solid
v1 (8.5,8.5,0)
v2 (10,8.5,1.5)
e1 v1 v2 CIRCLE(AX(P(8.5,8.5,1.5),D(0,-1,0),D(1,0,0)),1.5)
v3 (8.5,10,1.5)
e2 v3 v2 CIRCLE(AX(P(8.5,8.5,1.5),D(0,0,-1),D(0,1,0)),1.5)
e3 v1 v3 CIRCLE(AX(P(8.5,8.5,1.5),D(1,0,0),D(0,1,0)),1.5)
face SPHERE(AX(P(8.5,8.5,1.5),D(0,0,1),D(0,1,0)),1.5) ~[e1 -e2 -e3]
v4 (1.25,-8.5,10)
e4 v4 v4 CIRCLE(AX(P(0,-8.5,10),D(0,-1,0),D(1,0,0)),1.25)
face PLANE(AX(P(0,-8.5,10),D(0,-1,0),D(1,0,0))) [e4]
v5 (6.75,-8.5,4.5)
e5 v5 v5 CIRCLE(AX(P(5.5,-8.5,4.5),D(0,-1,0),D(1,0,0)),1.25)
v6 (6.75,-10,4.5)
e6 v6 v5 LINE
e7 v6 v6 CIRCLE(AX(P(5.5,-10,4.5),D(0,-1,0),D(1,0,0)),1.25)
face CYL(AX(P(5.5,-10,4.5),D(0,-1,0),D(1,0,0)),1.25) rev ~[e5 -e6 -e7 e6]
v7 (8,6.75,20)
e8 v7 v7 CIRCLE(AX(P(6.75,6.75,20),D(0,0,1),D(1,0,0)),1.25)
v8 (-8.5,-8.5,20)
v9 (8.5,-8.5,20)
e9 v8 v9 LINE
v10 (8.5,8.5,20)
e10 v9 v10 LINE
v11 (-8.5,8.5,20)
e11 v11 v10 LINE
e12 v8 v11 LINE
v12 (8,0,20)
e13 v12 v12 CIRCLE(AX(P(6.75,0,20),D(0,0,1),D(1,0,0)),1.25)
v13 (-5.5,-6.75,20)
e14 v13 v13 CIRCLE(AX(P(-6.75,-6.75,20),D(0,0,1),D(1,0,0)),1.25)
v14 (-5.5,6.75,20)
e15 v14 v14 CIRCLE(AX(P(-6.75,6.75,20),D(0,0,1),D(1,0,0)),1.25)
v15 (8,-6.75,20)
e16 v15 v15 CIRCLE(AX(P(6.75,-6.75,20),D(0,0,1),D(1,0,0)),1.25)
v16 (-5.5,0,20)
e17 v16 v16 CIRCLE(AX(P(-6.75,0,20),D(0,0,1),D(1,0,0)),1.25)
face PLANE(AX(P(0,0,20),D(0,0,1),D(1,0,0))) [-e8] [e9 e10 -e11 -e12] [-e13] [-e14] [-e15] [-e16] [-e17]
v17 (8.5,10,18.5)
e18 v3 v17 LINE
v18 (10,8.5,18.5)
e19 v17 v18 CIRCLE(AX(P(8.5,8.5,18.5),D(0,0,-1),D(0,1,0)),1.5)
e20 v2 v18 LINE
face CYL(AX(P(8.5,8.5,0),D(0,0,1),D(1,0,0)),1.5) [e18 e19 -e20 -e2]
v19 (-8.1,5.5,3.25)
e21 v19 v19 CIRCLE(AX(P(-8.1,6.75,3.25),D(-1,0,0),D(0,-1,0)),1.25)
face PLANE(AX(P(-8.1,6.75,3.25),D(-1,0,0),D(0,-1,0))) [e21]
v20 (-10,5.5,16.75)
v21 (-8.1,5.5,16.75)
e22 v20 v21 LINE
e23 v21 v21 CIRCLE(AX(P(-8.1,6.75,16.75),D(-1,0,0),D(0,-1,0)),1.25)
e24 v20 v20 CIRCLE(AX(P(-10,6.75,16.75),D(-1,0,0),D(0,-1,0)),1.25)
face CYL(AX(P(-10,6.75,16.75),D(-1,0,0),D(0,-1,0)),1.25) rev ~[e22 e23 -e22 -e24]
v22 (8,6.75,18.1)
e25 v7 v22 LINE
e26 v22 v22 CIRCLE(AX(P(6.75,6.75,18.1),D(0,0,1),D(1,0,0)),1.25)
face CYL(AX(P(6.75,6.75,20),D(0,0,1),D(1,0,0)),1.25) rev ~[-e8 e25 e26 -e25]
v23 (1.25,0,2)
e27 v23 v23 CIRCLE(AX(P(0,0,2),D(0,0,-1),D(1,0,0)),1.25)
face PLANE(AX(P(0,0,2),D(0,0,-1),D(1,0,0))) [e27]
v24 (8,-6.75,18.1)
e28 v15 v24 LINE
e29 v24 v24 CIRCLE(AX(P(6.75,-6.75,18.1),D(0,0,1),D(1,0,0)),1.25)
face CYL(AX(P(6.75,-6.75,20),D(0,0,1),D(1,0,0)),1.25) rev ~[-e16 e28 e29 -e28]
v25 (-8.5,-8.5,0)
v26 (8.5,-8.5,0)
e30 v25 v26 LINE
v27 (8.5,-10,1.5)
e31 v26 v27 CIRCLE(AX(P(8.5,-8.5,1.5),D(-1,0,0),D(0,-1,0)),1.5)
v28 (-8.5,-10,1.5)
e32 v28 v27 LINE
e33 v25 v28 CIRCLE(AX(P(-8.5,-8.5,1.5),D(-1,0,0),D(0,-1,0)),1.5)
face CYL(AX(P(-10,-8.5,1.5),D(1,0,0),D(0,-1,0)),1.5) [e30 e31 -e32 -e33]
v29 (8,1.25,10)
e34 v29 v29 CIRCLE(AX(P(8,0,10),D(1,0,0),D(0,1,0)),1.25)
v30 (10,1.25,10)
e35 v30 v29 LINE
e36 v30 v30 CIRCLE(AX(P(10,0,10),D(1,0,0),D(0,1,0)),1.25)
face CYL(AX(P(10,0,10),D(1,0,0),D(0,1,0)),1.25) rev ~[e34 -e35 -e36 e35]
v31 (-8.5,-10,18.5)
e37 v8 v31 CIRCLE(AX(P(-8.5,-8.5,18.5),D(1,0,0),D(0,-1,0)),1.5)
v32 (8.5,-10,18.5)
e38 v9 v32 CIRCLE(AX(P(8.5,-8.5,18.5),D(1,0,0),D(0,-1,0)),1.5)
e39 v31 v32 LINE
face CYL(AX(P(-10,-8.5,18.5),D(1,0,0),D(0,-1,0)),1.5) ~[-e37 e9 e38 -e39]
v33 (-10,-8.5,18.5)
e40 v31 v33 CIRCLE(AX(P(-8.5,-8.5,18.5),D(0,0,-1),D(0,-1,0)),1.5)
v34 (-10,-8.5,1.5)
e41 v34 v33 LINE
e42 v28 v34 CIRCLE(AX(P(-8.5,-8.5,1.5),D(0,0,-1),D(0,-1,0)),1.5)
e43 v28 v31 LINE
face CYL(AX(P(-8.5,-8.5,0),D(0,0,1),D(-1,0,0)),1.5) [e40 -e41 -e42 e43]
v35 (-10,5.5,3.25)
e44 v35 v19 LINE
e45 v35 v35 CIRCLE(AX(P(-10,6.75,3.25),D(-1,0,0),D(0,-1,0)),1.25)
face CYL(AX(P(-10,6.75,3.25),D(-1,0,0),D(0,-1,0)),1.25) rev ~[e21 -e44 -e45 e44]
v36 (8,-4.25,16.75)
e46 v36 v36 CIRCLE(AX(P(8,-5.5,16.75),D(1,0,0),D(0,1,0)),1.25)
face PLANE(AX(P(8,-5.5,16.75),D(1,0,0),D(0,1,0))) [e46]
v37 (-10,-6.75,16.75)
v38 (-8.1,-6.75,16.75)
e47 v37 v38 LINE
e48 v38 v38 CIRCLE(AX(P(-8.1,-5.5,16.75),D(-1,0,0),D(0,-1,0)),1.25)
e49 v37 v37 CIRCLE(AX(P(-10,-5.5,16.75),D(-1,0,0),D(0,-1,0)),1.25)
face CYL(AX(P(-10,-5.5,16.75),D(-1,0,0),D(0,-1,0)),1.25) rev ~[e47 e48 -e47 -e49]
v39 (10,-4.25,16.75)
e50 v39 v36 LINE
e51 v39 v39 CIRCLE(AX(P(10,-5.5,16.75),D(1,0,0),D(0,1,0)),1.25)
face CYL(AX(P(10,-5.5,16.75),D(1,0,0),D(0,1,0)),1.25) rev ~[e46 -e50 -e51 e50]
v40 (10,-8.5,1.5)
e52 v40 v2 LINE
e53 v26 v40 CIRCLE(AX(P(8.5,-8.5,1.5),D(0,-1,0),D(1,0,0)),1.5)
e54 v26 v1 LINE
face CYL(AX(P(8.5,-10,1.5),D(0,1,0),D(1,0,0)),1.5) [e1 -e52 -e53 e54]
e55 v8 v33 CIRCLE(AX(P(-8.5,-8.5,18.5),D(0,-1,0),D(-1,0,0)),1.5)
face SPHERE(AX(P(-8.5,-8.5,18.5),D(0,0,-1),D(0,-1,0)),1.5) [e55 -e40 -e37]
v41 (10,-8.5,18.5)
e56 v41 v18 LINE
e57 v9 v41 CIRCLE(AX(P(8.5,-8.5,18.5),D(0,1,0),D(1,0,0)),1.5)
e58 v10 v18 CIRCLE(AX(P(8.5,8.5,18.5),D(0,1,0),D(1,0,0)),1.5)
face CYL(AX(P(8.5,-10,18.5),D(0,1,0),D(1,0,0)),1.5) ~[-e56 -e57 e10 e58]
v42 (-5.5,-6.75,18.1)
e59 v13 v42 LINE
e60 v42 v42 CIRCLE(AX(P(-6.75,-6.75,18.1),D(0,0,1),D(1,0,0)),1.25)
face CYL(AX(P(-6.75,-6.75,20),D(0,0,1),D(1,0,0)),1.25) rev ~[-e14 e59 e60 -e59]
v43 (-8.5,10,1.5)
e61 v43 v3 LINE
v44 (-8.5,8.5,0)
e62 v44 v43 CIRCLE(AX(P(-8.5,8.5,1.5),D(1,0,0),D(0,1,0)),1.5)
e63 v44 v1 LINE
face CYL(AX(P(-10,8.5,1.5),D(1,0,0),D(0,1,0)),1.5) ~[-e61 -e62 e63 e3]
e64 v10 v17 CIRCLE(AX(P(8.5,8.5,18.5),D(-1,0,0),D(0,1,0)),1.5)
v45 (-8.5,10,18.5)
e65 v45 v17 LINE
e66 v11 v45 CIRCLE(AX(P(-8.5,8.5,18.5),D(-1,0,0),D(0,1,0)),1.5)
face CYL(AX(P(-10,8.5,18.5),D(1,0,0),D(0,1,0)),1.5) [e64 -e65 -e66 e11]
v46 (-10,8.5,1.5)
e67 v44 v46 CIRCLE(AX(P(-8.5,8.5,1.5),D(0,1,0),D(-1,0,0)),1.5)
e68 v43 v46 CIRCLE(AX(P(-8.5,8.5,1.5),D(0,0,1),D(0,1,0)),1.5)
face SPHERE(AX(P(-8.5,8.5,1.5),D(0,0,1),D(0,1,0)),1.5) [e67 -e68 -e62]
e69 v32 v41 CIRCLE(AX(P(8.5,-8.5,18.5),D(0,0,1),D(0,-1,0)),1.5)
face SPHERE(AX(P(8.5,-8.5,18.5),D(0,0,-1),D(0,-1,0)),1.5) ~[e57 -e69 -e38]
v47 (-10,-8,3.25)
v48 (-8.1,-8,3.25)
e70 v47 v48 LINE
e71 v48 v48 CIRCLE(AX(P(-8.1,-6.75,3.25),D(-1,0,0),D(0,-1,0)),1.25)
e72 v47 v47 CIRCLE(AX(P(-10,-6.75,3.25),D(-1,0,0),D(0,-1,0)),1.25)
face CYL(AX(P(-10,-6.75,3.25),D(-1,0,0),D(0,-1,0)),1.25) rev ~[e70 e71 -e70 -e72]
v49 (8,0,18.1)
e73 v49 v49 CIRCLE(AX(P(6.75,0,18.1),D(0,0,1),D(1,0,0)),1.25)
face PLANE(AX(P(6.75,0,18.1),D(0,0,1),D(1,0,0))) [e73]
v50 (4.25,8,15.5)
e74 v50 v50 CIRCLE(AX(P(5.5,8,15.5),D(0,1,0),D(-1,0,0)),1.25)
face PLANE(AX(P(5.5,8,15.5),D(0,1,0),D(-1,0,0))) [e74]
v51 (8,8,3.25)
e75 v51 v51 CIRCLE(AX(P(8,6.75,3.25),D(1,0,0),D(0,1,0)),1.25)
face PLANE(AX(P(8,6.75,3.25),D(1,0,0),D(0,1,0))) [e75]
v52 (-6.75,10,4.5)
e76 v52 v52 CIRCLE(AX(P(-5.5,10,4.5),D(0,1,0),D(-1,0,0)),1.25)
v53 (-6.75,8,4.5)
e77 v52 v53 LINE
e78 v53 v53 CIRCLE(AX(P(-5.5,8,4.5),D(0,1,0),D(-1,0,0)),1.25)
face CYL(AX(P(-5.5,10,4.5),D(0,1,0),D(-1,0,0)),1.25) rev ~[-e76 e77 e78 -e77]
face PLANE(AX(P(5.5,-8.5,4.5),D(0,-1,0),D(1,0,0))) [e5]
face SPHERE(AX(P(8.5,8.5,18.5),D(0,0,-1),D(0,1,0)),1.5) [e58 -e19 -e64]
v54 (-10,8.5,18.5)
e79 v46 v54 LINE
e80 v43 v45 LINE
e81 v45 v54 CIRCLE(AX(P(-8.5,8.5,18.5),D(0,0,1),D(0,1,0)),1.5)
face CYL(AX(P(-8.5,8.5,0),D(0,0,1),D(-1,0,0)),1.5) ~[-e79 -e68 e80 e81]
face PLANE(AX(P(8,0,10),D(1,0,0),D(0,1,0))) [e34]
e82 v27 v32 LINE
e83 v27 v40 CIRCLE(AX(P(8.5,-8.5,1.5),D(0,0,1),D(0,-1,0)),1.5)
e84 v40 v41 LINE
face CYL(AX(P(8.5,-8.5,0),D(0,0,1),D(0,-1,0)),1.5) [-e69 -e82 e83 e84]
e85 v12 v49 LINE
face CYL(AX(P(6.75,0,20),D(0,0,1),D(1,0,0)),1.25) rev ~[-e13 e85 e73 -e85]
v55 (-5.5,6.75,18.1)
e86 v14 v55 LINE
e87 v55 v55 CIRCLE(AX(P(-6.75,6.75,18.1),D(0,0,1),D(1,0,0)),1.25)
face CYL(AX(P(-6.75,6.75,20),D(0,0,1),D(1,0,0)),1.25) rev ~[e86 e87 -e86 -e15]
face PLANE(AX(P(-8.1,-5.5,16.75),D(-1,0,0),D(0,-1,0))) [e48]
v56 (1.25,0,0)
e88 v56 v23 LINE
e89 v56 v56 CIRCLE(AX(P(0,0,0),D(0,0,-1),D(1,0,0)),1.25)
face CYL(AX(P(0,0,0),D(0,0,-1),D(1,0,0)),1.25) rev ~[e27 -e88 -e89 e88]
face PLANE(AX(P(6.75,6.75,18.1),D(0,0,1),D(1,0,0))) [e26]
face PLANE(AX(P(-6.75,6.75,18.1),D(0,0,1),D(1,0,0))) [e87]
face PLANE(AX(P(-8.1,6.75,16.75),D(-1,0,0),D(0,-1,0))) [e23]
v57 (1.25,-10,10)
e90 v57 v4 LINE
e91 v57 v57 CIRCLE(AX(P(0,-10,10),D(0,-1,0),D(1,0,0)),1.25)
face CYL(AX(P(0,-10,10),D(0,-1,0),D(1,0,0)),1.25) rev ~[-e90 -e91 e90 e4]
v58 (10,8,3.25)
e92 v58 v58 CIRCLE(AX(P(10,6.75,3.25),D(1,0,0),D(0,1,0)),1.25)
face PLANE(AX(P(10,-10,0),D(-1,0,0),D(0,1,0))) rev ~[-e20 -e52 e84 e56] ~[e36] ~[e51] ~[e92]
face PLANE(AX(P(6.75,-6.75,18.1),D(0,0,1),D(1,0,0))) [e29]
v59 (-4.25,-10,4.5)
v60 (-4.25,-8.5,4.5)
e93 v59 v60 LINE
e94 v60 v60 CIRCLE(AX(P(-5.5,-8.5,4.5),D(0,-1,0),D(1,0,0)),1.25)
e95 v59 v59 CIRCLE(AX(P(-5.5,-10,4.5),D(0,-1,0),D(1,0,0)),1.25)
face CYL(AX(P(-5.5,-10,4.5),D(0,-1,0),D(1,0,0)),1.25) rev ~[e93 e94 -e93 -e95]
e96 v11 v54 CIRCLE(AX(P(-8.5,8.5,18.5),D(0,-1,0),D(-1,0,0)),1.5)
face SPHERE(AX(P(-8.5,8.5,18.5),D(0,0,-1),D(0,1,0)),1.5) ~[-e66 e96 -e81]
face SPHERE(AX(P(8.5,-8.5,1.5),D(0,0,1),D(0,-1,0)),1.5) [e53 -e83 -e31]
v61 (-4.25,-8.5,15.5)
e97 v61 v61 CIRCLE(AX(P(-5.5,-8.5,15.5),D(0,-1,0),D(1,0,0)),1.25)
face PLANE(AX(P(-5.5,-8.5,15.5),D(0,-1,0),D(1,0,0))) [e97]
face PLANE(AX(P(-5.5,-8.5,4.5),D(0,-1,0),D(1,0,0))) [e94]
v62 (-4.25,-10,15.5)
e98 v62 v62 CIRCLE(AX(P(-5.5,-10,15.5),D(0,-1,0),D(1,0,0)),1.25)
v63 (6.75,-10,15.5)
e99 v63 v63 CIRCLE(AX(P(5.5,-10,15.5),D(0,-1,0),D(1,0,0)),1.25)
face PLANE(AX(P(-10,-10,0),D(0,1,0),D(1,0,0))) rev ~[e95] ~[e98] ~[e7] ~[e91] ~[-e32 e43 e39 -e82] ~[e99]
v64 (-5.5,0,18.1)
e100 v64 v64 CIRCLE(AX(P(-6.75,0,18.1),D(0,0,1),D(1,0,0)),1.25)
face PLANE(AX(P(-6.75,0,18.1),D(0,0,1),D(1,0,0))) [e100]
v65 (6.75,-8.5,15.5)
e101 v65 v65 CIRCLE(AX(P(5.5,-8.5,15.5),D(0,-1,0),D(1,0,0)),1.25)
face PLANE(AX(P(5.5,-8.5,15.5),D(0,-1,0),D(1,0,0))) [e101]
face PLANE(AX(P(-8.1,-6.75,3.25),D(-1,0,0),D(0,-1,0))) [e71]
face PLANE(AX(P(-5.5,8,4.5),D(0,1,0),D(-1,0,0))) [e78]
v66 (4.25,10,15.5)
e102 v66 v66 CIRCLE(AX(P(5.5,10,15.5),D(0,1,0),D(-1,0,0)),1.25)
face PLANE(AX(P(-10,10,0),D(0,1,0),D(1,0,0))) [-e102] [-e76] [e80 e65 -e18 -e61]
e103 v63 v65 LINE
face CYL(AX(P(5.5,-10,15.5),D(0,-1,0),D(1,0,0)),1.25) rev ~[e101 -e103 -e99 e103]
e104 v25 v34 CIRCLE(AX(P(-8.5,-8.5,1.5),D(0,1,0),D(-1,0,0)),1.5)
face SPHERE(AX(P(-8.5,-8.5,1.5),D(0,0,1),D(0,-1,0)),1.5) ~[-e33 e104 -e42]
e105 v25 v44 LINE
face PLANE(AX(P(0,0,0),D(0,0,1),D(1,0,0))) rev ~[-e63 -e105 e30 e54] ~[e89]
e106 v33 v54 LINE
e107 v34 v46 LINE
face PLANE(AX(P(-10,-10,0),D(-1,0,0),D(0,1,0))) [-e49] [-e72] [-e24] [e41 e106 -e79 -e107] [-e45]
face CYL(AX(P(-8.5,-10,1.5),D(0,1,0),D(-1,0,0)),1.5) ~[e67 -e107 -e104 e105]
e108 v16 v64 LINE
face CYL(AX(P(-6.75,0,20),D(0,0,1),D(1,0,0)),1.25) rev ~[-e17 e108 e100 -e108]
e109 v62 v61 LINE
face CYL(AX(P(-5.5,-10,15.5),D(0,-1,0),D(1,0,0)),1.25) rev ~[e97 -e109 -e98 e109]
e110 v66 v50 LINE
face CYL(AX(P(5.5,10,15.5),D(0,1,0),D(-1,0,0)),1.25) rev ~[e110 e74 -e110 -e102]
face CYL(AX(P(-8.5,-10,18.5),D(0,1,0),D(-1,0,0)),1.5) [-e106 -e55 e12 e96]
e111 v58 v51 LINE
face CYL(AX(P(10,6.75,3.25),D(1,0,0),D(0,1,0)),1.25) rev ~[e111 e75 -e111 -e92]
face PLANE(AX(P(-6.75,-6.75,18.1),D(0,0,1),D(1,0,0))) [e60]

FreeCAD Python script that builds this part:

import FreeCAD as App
import Part
import Sketcher

doc = App.newDocument("Part")
params = doc.addObject("Spreadsheet::Sheet", "Params")
for row, (alias, value) in enumerate([
    ("sketch1_width", "20 mm"),
    ("pad1_length", "20 mm"),
    ("fillet_radius", "1.5 mm"),
    ("sketch2_diameter", "2.5 mm"),
    ("pocket1_length", "2 mm"),
    ("sketch3_diameter", "2.5 mm"),
    ("pocket2_length", "1.5 mm"),
    ("sketch4_diameter", "2.5 mm"),
    ("pocket3_length", "2 mm"),
    ("sketch5_diameter", "2.5 mm"),
    ("pocket4_length", "1.9 mm"),
    ("sketch6_diameter", "2.5 mm"),
    ("pocket5_length", "1.9 mm"),
    ("sketch7_diameter", "2.5 mm"),
    ("pocket6_length", "2 mm"),
], start=1):
    params.set(f"A{row}", alias)
    params.set(f"B{row}", "=" + value)
    params.setAlias(f"B{row}", alias)

body = doc.addObject("PartDesign::Body", "Body")

# Sketch on XY plane
sketch1 = body.newObject("Sketcher::SketchObject", "Sketch")
sketch1.AttachmentSupport = (doc.getObject("XY_Plane"), [""])
sketch1.MapMode = "FlatFace"
sketch1.addGeometry([
    Part.LineSegment(App.Vector(-10, 10, 0), App.Vector(-10, -10, 0)),
    Part.LineSegment(App.Vector(-10, -10, 0), App.Vector(10, -10, 0)),
    Part.LineSegment(App.Vector(10, -10, 0), App.Vector(10, 10, 0)),
    Part.LineSegment(App.Vector(10, 10, 0), App.Vector(-10, 10, 0)),
], False)
sketch1.addConstraint([
    Sketcher.Constraint("Coincident", 0, 2, 1, 1),
    Sketcher.Constraint("Coincident", 1, 2, 2, 1),
    Sketcher.Constraint("Coincident", 2, 2, 3, 1),
    Sketcher.Constraint("Coincident", 3, 2, 0, 1),
    Sketcher.Constraint("Vertical", 0),
    Sketcher.Constraint("Horizontal", 1),
    Sketcher.Constraint("Vertical", 2),
    Sketcher.Constraint("Horizontal", 3),
    Sketcher.Constraint("Symmetric", 0, 2, 2, 2, -1, 1),
    Sketcher.Constraint("Equal", 3, 0),
    Sketcher.Constraint("DistanceX", 1, 1, 1, 2, 20.0),
])
sketch1.setExpression("Constraints[10]", "Params.sketch1_width")
pad1 = body.newObject("PartDesign::Pad", "Pad")
pad1.Profile = sketch1
pad1.setExpression("Length", "Params.pad1_length")
doc.recompute()

fillet = body.newObject("PartDesign::Fillet", "Fillet")
fillet.Base = (pad1, ["Edge1"])
fillet.UseAllEdges = True
fillet.setExpression("Radius", "Params.fillet_radius")

# Sketch on YZ plane
sketch2 = body.newObject("Sketcher::SketchObject", "Sketch001")
sketch2.AttachmentSupport = (doc.getObject("YZ_Plane"), [""])
sketch2.MapMode = "FlatFace"
sketch2.AttachmentOffset = App.Placement(App.Vector(0, 0, 10), App.Rotation())
sketch2.addGeometry([
    Part.Circle(App.Vector(-5.5, 16.8, 0), App.Vector(0, 0, 1), 1.2),
    Part.Circle(App.Vector(0, 10, 0), App.Vector(0, 0, 1), 1.2),
    Part.Circle(App.Vector(6.8, 3.2, 0), App.Vector(0, 0, 1), 1.2),
], False)
sketch2.addConstraint([
    Sketcher.Constraint("Equal", 0, 1),
    Sketcher.Constraint("Equal", 1, 2),
    Sketcher.Constraint("PointOnObject", 1, 3, -2),
    Sketcher.Constraint("Diameter", 0, 2.5),
    Sketcher.Constraint("DistanceY", -1, 1, 1, 3, 10.0),
    Sketcher.Constraint("DistanceX", 0, 3, -1, 1, 5.5),
    Sketcher.Constraint("DistanceY", 2, 3, 0, 3, 13.5),
    Sketcher.Constraint("DistanceY", -1, 1, 0, 3, 16.75),
    Sketcher.Constraint("DistanceX", -1, 1, 2, 3, 6.75),
])
sketch2.setExpression("Constraints[3]", "Params.sketch2_diameter")
pocket1 = body.newObject("PartDesign::Pocket", "Pocket")
pocket1.Profile = sketch2
pocket1.setExpression("Length", "Params.pocket1_length")

# Sketch on XZ plane
sketch3 = body.newObject("Sketcher::SketchObject", "Sketch002")
sketch3.AttachmentSupport = (doc.getObject("XZ_Plane"), [""])
sketch3.MapMode = "FlatFace"
sketch3.AttachmentOffset = App.Placement(App.Vector(0, 0, 10), App.Rotation())
sketch3.addGeometry([
    Part.Circle(App.Vector(-5.5, 4.5, 0), App.Vector(0, 0, 1), 1.2),  # 0
    Part.Circle(App.Vector(5.5, 15.5, 0), App.Vector(0, 0, 1), 1.2),  # 1
    Part.Circle(App.Vector(-5.5, 15.5, 0), App.Vector(0, 0, 1), 1.2),  # 2
    Part.Circle(App.Vector(0, 10, 0), App.Vector(0, 0, 1), 1.2),  # 3
    Part.Circle(App.Vector(5.5, 4.5, 0), App.Vector(0, 0, 1), 1.2),  # 4
], False)
sketch3.addConstraint([
    Sketcher.Constraint("Equal", 0, 1),
    Sketcher.Constraint("Equal", 1, 2),
    Sketcher.Constraint("Equal", 2, 3),
    Sketcher.Constraint("Equal", 3, 4),
    Sketcher.Constraint("Symmetric", 1, 3, 2, 3, -2),
    Sketcher.Constraint("Symmetric", 0, 3, 4, 3, -2),
    Sketcher.Constraint("PointOnObject", 3, 3, -2),
    Sketcher.Constraint("Vertical", 0, 3, 2, 3),
    Sketcher.Constraint("Diameter", 0, 2.5),
    Sketcher.Constraint("DistanceY", -1, 1, 3, 3, 10.0),
    Sketcher.Constraint("DistanceX", 0, 3, 1, 3, 11.0),
    Sketcher.Constraint("DistanceY", 0, 3, 1, 3, 11.0),
    Sketcher.Constraint("DistanceY", -1, 1, 0, 3, 4.5),
])
sketch3.setExpression("Constraints[8]", "Params.sketch3_diameter")
pocket2 = body.newObject("PartDesign::Pocket", "Pocket001")
pocket2.Profile = sketch3
pocket2.setExpression("Length", "Params.pocket2_length")

# Sketch on XZ plane
sketch4 = body.newObject("Sketcher::SketchObject", "Sketch003")
sketch4.AttachmentSupport = (doc.getObject("XZ_Plane"), [""])
sketch4.MapMode = "FlatFace"
sketch4.AttachmentOffset = App.Placement(App.Vector(0, 0, -10), App.Rotation())
sketch4.addGeometry([
    Part.Circle(App.Vector(5.5, 15.5, 0), App.Vector(0, 0, 1), 1.2),
    Part.Circle(App.Vector(-5.5, 4.5, 0), App.Vector(0, 0, 1), 1.2),
], False)
sketch4.addConstraint([
    Sketcher.Constraint("Equal", 0, 1),
    Sketcher.Constraint("Diameter", 0, 2.5),
    Sketcher.Constraint("DistanceX", 1, 3, 0, 3, 11.0),
    Sketcher.Constraint("DistanceY", 1, 3, 0, 3, 11.0),
    Sketcher.Constraint("DistanceX", -1, 1, 0, 3, 5.5),
    Sketcher.Constraint("DistanceY", -1, 1, 0, 3, 15.5),
])
sketch4.setExpression("Constraints[1]", "Params.sketch4_diameter")
pocket3 = body.newObject("PartDesign::Pocket", "Pocket002")
pocket3.Profile = sketch4
pocket3.setExpression("Length", "Params.pocket3_length")
pocket3.Reversed = True

# Sketch on YZ plane
sketch5 = body.newObject("Sketcher::SketchObject", "Sketch004")
sketch5.AttachmentSupport = (doc.getObject("YZ_Plane"), [""])
sketch5.MapMode = "FlatFace"
sketch5.AttachmentOffset = App.Placement(App.Vector(0, 0, -10), App.Rotation())
sketch5.addGeometry([
    Part.Circle(App.Vector(6.8, 3.2, 0), App.Vector(0, 0, 1), 1.2),
    Part.Circle(App.Vector(-5.5, 16.8, 0), App.Vector(0, 0, 1), 1.2),
    Part.Circle(App.Vector(-6.8, 3.2, 0), App.Vector(0, 0, 1), 1.2),
    Part.Circle(App.Vector(6.8, 16.8, 0), App.Vector(0, 0, 1), 1.2),
], False)
sketch5.addConstraint([
    Sketcher.Constraint("Equal", 0, 1),
    Sketcher.Constraint("Equal", 1, 2),
    Sketcher.Constraint("Equal", 2, 3),
    Sketcher.Constraint("Symmetric", 0, 3, 2, 3, -2),
    Sketcher.Constraint("Horizontal", 1, 3, 3, 3),
    Sketcher.Constraint("Vertical", 0, 3, 3, 3),
    Sketcher.Constraint("Diameter", 0, 2.5),
    Sketcher.Constraint("DistanceX", 1, 3, -1, 1, 5.5),
    Sketcher.Constraint("DistanceY", 0, 3, 1, 3, 13.5),
    Sketcher.Constraint("DistanceX", 2, 3, 0, 3, 13.5),
    Sketcher.Constraint("DistanceY", -1, 1, 0, 3, 3.25),
])
sketch5.setExpression("Constraints[6]", "Params.sketch5_diameter")
pocket4 = body.newObject("PartDesign::Pocket", "Pocket003")
pocket4.Profile = sketch5
pocket4.setExpression("Length", "Params.pocket4_length")
pocket4.Reversed = True

# Sketch on XY plane
sketch6 = body.newObject("Sketcher::SketchObject", "Sketch005")
sketch6.AttachmentSupport = (doc.getObject("XY_Plane"), [""])
sketch6.MapMode = "FlatFace"
sketch6.AttachmentOffset = App.Placement(App.Vector(0, 0, 20), App.Rotation())
sketch6.addGeometry([
    Part.Circle(App.Vector(-6.8, 6.8, 0), App.Vector(0, 0, 1), 1.2),  # 0
    Part.Circle(App.Vector(-6.8, -6.8, 0), App.Vector(0, 0, 1), 1.2),  # 1
    Part.Circle(App.Vector(-6.8, 0, 0), App.Vector(0, 0, 1), 1.2),  # 2
    Part.Circle(App.Vector(6.8, 6.8, 0), App.Vector(0, 0, 1), 1.2),  # 3
    Part.Circle(App.Vector(6.8, 0, 0), App.Vector(0, 0, 1), 1.2),  # 4
    Part.Circle(App.Vector(6.8, -6.8, 0), App.Vector(0, 0, 1), 1.2),  # 5
], False)
sketch6.addConstraint([
    Sketcher.Constraint("Equal", 0, 1),
    Sketcher.Constraint("Equal", 1, 2),
    Sketcher.Constraint("Equal", 2, 3),
    Sketcher.Constraint("Equal", 3, 4),
    Sketcher.Constraint("Equal", 4, 5),
    Sketcher.Constraint("Symmetric", 1, 3, 3, 3, -1, 1),
    Sketcher.Constraint("Symmetric", 2, 3, 4, 3, -1, 1),
    Sketcher.Constraint("Symmetric", 0, 3, 5, 3, -1, 1),
    Sketcher.Constraint("Symmetric", 0, 3, 3, 3, -2),
    Sketcher.Constraint("PointOnObject", 2, 3, -1),
    Sketcher.Constraint("Vertical", 1, 3, 2, 3),
    Sketcher.Constraint("Diameter", 0, 2.5),
    Sketcher.Constraint("DistanceY", 1, 3, 0, 3, 13.5),
    Sketcher.Constraint("DistanceX", 0, 3, 3, 3, 13.5),
])
sketch6.setExpression("Constraints[11]", "Params.sketch6_diameter")
pocket5 = body.newObject("PartDesign::Pocket", "Pocket004")
pocket5.Profile = sketch6
pocket5.setExpression("Length", "Params.pocket5_length")

# Sketch on XY plane
sketch7 = body.newObject("Sketcher::SketchObject", "Sketch006")
sketch7.AttachmentSupport = (doc.getObject("XY_Plane"), [""])
sketch7.MapMode = "FlatFace"
sketch7.addGeometry(Part.Circle(App.Vector(0, 0, 0), App.Vector(0, 0, 1), 1.2), False)
sketch7.addConstraint([
    Sketcher.Constraint("Coincident", 0, 3, -1, 1),
    Sketcher.Constraint("Diameter", 0, 2.5),
])
sketch7.setExpression("Constraints[1]", "Params.sketch7_diameter")
pocket6 = body.newObject("PartDesign::Pocket", "Pocket005")
pocket6.Profile = sketch7
pocket6.setExpression("Length", "Params.pocket6_length")
pocket6.Reversed = True

doc.recompute()
